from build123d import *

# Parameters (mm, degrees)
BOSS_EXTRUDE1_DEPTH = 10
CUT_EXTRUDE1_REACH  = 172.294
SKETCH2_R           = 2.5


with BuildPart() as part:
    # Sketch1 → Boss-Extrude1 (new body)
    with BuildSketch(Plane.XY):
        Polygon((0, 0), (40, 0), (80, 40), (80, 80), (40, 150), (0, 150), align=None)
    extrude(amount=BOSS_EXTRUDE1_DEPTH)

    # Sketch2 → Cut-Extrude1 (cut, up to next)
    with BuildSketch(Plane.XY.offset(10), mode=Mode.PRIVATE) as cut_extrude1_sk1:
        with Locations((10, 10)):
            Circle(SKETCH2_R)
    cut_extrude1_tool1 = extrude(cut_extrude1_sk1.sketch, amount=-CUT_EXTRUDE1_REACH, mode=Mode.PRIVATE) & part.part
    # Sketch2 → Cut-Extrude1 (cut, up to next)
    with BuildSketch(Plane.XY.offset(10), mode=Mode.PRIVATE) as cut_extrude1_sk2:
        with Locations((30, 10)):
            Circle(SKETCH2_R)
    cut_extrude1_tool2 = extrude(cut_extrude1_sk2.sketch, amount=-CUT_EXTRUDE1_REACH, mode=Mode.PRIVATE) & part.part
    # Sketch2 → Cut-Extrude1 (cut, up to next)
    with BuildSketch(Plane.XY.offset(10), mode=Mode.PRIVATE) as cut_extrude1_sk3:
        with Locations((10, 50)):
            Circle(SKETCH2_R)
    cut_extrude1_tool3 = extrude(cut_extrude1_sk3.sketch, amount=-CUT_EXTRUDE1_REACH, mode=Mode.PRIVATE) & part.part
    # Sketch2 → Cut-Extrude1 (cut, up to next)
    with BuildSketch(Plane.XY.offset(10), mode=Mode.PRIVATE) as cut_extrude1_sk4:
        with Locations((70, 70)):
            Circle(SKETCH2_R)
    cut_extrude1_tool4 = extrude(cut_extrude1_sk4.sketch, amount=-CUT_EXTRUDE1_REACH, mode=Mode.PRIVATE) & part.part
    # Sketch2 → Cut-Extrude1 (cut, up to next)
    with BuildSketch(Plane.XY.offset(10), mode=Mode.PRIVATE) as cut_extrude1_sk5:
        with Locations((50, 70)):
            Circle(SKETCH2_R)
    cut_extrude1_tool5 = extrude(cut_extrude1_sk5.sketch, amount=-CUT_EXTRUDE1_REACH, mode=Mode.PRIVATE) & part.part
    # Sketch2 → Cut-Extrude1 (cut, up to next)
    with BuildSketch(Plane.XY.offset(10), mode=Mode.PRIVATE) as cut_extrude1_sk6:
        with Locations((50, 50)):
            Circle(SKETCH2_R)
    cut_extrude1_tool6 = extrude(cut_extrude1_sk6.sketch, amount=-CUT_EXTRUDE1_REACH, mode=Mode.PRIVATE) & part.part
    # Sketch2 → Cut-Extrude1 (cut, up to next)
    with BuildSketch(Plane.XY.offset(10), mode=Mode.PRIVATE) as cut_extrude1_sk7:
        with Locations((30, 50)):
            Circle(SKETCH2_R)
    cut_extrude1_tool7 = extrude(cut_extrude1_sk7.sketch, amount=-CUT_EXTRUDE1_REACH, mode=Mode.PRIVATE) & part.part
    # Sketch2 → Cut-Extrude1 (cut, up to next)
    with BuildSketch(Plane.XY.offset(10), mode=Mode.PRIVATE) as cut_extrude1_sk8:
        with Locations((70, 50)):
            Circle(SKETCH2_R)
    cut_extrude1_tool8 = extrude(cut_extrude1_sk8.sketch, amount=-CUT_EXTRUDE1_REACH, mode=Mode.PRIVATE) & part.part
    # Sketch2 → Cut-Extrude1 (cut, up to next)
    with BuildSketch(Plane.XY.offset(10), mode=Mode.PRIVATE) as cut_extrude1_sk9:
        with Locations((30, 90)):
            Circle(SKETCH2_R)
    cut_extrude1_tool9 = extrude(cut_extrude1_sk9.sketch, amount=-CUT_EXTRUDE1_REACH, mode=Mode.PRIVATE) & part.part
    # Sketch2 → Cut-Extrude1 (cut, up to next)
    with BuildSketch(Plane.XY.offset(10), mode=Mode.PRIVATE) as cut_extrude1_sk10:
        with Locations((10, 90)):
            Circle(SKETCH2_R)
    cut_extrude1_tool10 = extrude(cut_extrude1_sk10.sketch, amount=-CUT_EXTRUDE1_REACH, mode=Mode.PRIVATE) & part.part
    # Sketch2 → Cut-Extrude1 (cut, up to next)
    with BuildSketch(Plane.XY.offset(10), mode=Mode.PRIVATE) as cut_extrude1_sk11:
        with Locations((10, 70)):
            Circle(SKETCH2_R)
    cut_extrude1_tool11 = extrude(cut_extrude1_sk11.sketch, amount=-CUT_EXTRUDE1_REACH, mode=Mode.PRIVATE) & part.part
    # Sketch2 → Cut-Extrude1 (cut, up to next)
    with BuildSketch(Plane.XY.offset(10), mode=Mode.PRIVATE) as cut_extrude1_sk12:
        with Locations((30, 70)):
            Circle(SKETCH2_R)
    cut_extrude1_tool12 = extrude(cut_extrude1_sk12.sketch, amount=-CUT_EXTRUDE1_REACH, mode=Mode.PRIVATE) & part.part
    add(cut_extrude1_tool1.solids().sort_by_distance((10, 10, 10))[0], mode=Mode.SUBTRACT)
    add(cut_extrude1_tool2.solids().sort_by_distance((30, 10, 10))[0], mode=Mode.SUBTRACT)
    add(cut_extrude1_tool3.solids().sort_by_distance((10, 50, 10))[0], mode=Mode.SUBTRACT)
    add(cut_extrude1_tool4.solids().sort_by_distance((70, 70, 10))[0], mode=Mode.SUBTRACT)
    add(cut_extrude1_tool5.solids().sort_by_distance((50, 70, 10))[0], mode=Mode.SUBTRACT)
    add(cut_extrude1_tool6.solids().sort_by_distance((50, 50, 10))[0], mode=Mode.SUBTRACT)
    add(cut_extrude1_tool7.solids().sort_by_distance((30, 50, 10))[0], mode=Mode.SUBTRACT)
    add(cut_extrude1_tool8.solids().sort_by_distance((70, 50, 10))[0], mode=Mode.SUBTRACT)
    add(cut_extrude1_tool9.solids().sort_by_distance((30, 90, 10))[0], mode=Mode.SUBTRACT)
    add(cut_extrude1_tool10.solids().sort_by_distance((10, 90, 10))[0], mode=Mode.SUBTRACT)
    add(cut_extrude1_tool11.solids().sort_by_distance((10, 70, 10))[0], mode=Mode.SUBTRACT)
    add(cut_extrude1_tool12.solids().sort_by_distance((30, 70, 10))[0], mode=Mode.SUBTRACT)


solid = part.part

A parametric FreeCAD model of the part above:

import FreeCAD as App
import Part
import Sketcher

V = App.Vector
Q = App.Units.Quantity

doc = App.newDocument("Part")
params = doc.addObject("Spreadsheet::Sheet", "Params")
for row, (alias, value) in enumerate([
    ("sketch1_width", "40 mm"),
    ("sketch1_height", "150 mm"),
    ("pad1_length", "10 mm"),
    ("sketch2_diameter", "5 mm"),
    ("sketch3_diameter", "5 mm"),
    ("sketch4_diameter", "5 mm"),
    ("sketch5_diameter", "5 mm"),
    ("sketch6_diameter", "5 mm"),
    ("sketch7_diameter", "5 mm"),
    ("sketch8_diameter", "5 mm"),
    ("sketch9_diameter", "5 mm"),
    ("sketch10_diameter", "5 mm"),
    ("sketch11_diameter", "5 mm"),
    ("sketch12_diameter", "5 mm"),
    ("sketch13_diameter", "5 mm"),
], start=1):
    params.set(f"A{row}", alias)
    params.set(f"B{row}", "=" + value)
    params.setAlias(f"B{row}", alias)

body = doc.addObject("PartDesign::Body", "Body")

sketch1 = body.newObject("Sketcher::SketchObject", "Sketch")
sketch1.AttachmentSupport = (doc.getObject("XY_Plane"), [""])
sketch1.MapMode = "FlatFace"
sketch1.addGeometry([
    Part.LineSegment(V(0, 0, 0), V(40, 0, 0)),
    Part.LineSegment(V(40, 0, 0), V(80, 40, 0)),
    Part.LineSegment(V(80, 40, 0), V(80, 80, 0)),
    Part.LineSegment(V(80, 80, 0), V(40, 150, 0)),
    Part.LineSegment(V(40, 150, 0), V(0, 150, 0)),
    Part.LineSegment(V(0, 150, 0), V(0, 0, 0)),
], False)
sketch1.addConstraint([
    Sketcher.Constraint("Coincident", 0, 2, 1, 1),
    Sketcher.Constraint("Coincident", 1, 2, 2, 1),
    Sketcher.Constraint("Coincident", 2, 2, 3, 1),
    Sketcher.Constraint("Coincident", 3, 2, 4, 1),
    Sketcher.Constraint("Coincident", 4, 2, 5, 1),
    Sketcher.Constraint("Coincident", 5, 2, 0, 1),
    Sketcher.Constraint("Horizontal", 0),
    Sketcher.Constraint("Vertical", 2),
    Sketcher.Constraint("Horizontal", 4),
    Sketcher.Constraint("Vertical", 5),
    Sketcher.Constraint("Coincident", 5, 2, -1, 1),
    Sketcher.Constraint("Vertical", 0, 2, 3, 2),
    Sketcher.Constraint("Equal", 4, 2),
    Sketcher.Constraint("DistanceX", 0, 1, 0, 2, Q("40 mm")),
    Sketcher.Constraint("DistanceY", 5, 2, 5, 1, Q("150 mm")),
    Sketcher.Constraint("Angle", 1, Q("45 deg")),
    Sketcher.Constraint("DistanceX", -1, 1, 1, 2, Q("80 mm")),
])
sketch1.setExpression("Constraints[13]", "Params.sketch1_width")
sketch1.setExpression("Constraints[14]", "Params.sketch1_height")
pad1 = body.newObject("PartDesign::Pad", "Pad")
pad1.Profile = sketch1
pad1.setExpression("Length", "Params.pad1_length")

sketch2 = body.newObject("Sketcher::SketchObject", "Sketch001")
sketch2.AttachmentSupport = (doc.getObject("XY_Plane"), [""])
sketch2.MapMode = "FlatFace"
sketch2.AttachmentOffset = App.Placement(V(0, 0, 10), App.Rotation())
sketch2.addGeometry(Part.Circle(V(10, 10, 0), V(0, 0, 1), 2.5), False)
sketch2.addConstraint([
    Sketcher.Constraint("Diameter", 0, Q("5 mm")),
    Sketcher.Constraint("DistanceX", -1, 1, 0, 3, Q("10 mm")),
    Sketcher.Constraint("DistanceY", -1, 1, 0, 3, Q("10 mm")),
])
sketch2.setExpression("Constraints[0]", "Params.sketch2_diameter")
pocket1 = body.newObject("PartDesign::Pocket", "Pocket")
pocket1.Profile = sketch2
pocket1.Type = "UpToFirst"

sketch3 = body.newObject("Sketcher::SketchObject", "Sketch002")
sketch3.AttachmentSupport = (doc.getObject("XY_Plane"), [""])
sketch3.MapMode = "FlatFace"
sketch3.AttachmentOffset = App.Placement(V(0, 0, 10), App.Rotation())
sketch3.addGeometry(Part.Circle(V(30, 10, 0), V(0, 0, 1), 2.5), False)
sketch3.addConstraint([
    Sketcher.Constraint("Diameter", 0, Q("5 mm")),
    Sketcher.Constraint("DistanceX", -1, 1, 0, 3, Q("30 mm")),
    Sketcher.Constraint("DistanceY", -1, 1, 0, 3, Q("10 mm")),
])
sketch3.setExpression("Constraints[0]", "Params.sketch3_diameter")
pocket2 = body.newObject("PartDesign::Pocket", "Pocket001")
pocket2.Profile = sketch3
pocket2.Type = "UpToFirst"

sketch4 = body.newObject("Sketcher::SketchObject", "Sketch003")
sketch4.AttachmentSupport = (doc.getObject("XY_Plane"), [""])
sketch4.MapMode = "FlatFace"
sketch4.AttachmentOffset = App.Placement(V(0, 0, 10), App.Rotation())
sketch4.addGeometry(Part.Circle(V(10, 50, 0), V(0, 0, 1), 2.5), False)
sketch4.addConstraint([
    Sketcher.Constraint("Diameter", 0, Q("5 mm")),
    Sketcher.Constraint("DistanceX", -1, 1, 0, 3, Q("10 mm")),
    Sketcher.Constraint("DistanceY", -1, 1, 0, 3, Q("50 mm")),
])
sketch4.setExpression("Constraints[0]", "Params.sketch4_diameter")
pocket3 = body.newObject("PartDesign::Pocket", "Pocket002")
pocket3.Profile = sketch4
pocket3.Type = "UpToFirst"

sketch5 = body.newObject("Sketcher::SketchObject", "Sketch004")
sketch5.AttachmentSupport = (doc.getObject("XY_Plane"), [""])
sketch5.MapMode = "FlatFace"
sketch5.AttachmentOffset = App.Placement(V(0, 0, 10), App.Rotation())
sketch5.addGeometry(Part.Circle(V(70, 70, 0), V(0, 0, 1), 2.5), False)
sketch5.addConstraint([
    Sketcher.Constraint("Diameter", 0, Q("5 mm")),
    Sketcher.Constraint("DistanceX", -1, 1, 0, 3, Q("70 mm")),
    Sketcher.Constraint("DistanceY", -1, 1, 0, 3, Q("70 mm")),
])
sketch5.setExpression("Constraints[0]", "Params.sketch5_diameter")
pocket4 = body.newObject("PartDesign::Pocket", "Pocket003")
pocket4.Profile = sketch5
pocket4.Type = "UpToFirst"

sketch6 = body.newObject("Sketcher::SketchObject", "Sketch005")
sketch6.AttachmentSupport = (doc.getObject("XY_Plane"), [""])
sketch6.MapMode = "FlatFace"
sketch6.AttachmentOffset = App.Placement(V(0, 0, 10), App.Rotation())
sketch6.addGeometry(Part.Circle(V(50, 70, 0), V(0, 0, 1), 2.5), False)
sketch6.addConstraint([
    Sketcher.Constraint("Diameter", 0, Q("5 mm")),
    Sketcher.Constraint("DistanceX", -1, 1, 0, 3, Q("50 mm")),
    Sketcher.Constraint("DistanceY", -1, 1, 0, 3, Q("70 mm")),
])
sketch6.setExpression("Constraints[0]", "Params.sketch6_diameter")
pocket5 = body.newObject("PartDesign::Pocket", "Pocket004")
pocket5.Profile = sketch6
pocket5.Type = "UpToFirst"

sketch7 = body.newObject("Sketcher::SketchObject", "Sketch006")
sketch7.AttachmentSupport = (doc.getObject("XY_Plane"), [""])
sketch7.MapMode = "FlatFace"
sketch7.AttachmentOffset = App.Placement(V(0, 0, 10), App.Rotation())
sketch7.addGeometry(Part.Circle(V(50, 50, 0), V(0, 0, 1), 2.5), False)
sketch7.addConstraint([
    Sketcher.Constraint("Diameter", 0, Q("5 mm")),
    Sketcher.Constraint("DistanceX", -1, 1, 0, 3, Q("50 mm")),
    Sketcher.Constraint("DistanceY", -1, 1, 0, 3, Q("50 mm")),
])
sketch7.setExpression("Constraints[0]", "Params.sketch7_diameter")
pocket6 = body.newObject("PartDesign::Pocket", "Pocket005")
pocket6.Profile = sketch7
pocket6.Type = "UpToFirst"

sketch8 = body.newObject("Sketcher::SketchObject", "Sketch007")
sketch8.AttachmentSupport = (doc.getObject("XY_Plane"), [""])
sketch8.MapMode = "FlatFace"
sketch8.AttachmentOffset = App.Placement(V(0, 0, 10), App.Rotation())
sketch8.addGeometry(Part.Circle(V(30, 50, 0), V(0, 0, 1), 2.5), False)
sketch8.addConstraint([
    Sketcher.Constraint("Diameter", 0, Q("5 mm")),
    Sketcher.Constraint("DistanceX", -1, 1, 0, 3, Q("30 mm")),
    Sketcher.Constraint("DistanceY", -1, 1, 0, 3, Q("50 mm")),
])
sketch8.setExpression("Constraints[0]", "Params.sketch8_diameter")
pocket7 = body.newObject("PartDesign::Pocket", "Pocket006")
pocket7.Profile = sketch8
pocket7.Type = "UpToFirst"

sketch9 = body.newObject("Sketcher::SketchObject", "Sketch008")
sketch9.AttachmentSupport = (doc.getObject("XY_Plane"), [""])
sketch9.MapMode = "FlatFace"
sketch9.AttachmentOffset = App.Placement(V(0, 0, 10), App.Rotation())
sketch9.addGeometry(Part.Circle(V(70, 50, 0), V(0, 0, 1), 2.5), False)
sketch9.addConstraint([
    Sketcher.Constraint("Diameter", 0, Q("5 mm")),
    Sketcher.Constraint("DistanceX", -1, 1, 0, 3, Q("70 mm")),
    Sketcher.Constraint("DistanceY", -1, 1, 0, 3, Q("50 mm")),
])
sketch9.setExpression("Constraints[0]", "Params.sketch9_diameter")
pocket8 = body.newObject("PartDesign::Pocket", "Pocket007")
pocket8.Profile = sketch9
pocket8.Type = "UpToFirst"

sketch10 = body.newObject("Sketcher::SketchObject", "Sketch009")
sketch10.AttachmentSupport = (doc.getObject("XY_Plane"), [""])
sketch10.MapMode = "FlatFace"
sketch10.AttachmentOffset = App.Placement(V(0, 0, 10), App.Rotation())
sketch10.addGeometry(Part.Circle(V(30, 90, 0), V(0, 0, 1), 2.5), False)
sketch10.addConstraint([
    Sketcher.Constraint("Diameter", 0, Q("5 mm")),
    Sketcher.Constraint("DistanceX", -1, 1, 0, 3, Q("30 mm")),
    Sketcher.Constraint("DistanceY", -1, 1, 0, 3, Q("90 mm")),
])
sketch10.setExpression("Constraints[0]", "Params.sketch10_diameter")
pocket9 = body.newObject("PartDesign::Pocket", "Pocket008")
pocket9.Profile = sketch10
pocket9.Type = "UpToFirst"

sketch11 = body.newObject("Sketcher::SketchObject", "Sketch010")
sketch11.AttachmentSupport = (doc.getObject("XY_Plane"), [""])
sketch11.MapMode = "FlatFace"
sketch11.AttachmentOffset = App.Placement(V(0, 0, 10), App.Rotation())
sketch11.addGeometry(Part.Circle(V(10, 90, 0), V(0, 0, 1), 2.5), False)
sketch11.addConstraint([
    Sketcher.Constraint("Diameter", 0, Q("5 mm")),
    Sketcher.Constraint("DistanceX", -1, 1, 0, 3, Q("10 mm")),
    Sketcher.Constraint("DistanceY", -1, 1, 0, 3, Q("90 mm")),
])
sketch11.setExpression("Constraints[0]", "Params.sketch11_diameter")
pocket10 = body.newObject("PartDesign::Pocket", "Pocket009")
pocket10.Profile = sketch11
pocket10.Type = "UpToFirst"

sketch12 = body.newObject("Sketcher::SketchObject", "Sketch011")
sketch12.AttachmentSupport = (doc.getObject("XY_Plane"), [""])
sketch12.MapMode = "FlatFace"
sketch12.AttachmentOffset = App.Placement(V(0, 0, 10), App.Rotation())
sketch12.addGeometry(Part.Circle(V(10, 70, 0), V(0, 0, 1), 2.5), False)
sketch12.addConstraint([
    Sketcher.Constraint("Diameter", 0, Q("5 mm")),
    Sketcher.Constraint("DistanceX", -1, 1, 0, 3, Q("10 mm")),
    Sketcher.Constraint("DistanceY", -1, 1, 0, 3, Q("70 mm")),
])
sketch12.setExpression("Constraints[0]", "Params.sketch12_diameter")
pocket11 = body.newObject("PartDesign::Pocket", "Pocket010")
pocket11.Profile = sketch12
pocket11.Type = "UpToFirst"

sketch13 = body.newObject("Sketcher::SketchObject", "Sketch012")
sketch13.AttachmentSupport = (doc.getObject("XY_Plane"), [""])
sketch13.MapMode = "FlatFace"
sketch13.AttachmentOffset = App.Placement(V(0, 0, 10), App.Rotation())
sketch13.addGeometry(Part.Circle(V(30, 70, 0), V(0, 0, 1), 2.5), False)
sketch13.addConstraint([
    Sketcher.Constraint("Diameter", 0, Q("5 mm")),
    Sketcher.Constraint("DistanceX", -1, 1, 0, 3, Q("30 mm")),
    Sketcher.Constraint("DistanceY", -1, 1, 0, 3, Q("70 mm")),
])
sketch13.setExpression("Constraints[0]", "Params.sketch13_diameter")
pocket12 = body.newObject("PartDesign::Pocket", "Pocket011")
pocket12.Profile = sketch13
pocket12.Type = "UpToFirst"

doc.recompute()
